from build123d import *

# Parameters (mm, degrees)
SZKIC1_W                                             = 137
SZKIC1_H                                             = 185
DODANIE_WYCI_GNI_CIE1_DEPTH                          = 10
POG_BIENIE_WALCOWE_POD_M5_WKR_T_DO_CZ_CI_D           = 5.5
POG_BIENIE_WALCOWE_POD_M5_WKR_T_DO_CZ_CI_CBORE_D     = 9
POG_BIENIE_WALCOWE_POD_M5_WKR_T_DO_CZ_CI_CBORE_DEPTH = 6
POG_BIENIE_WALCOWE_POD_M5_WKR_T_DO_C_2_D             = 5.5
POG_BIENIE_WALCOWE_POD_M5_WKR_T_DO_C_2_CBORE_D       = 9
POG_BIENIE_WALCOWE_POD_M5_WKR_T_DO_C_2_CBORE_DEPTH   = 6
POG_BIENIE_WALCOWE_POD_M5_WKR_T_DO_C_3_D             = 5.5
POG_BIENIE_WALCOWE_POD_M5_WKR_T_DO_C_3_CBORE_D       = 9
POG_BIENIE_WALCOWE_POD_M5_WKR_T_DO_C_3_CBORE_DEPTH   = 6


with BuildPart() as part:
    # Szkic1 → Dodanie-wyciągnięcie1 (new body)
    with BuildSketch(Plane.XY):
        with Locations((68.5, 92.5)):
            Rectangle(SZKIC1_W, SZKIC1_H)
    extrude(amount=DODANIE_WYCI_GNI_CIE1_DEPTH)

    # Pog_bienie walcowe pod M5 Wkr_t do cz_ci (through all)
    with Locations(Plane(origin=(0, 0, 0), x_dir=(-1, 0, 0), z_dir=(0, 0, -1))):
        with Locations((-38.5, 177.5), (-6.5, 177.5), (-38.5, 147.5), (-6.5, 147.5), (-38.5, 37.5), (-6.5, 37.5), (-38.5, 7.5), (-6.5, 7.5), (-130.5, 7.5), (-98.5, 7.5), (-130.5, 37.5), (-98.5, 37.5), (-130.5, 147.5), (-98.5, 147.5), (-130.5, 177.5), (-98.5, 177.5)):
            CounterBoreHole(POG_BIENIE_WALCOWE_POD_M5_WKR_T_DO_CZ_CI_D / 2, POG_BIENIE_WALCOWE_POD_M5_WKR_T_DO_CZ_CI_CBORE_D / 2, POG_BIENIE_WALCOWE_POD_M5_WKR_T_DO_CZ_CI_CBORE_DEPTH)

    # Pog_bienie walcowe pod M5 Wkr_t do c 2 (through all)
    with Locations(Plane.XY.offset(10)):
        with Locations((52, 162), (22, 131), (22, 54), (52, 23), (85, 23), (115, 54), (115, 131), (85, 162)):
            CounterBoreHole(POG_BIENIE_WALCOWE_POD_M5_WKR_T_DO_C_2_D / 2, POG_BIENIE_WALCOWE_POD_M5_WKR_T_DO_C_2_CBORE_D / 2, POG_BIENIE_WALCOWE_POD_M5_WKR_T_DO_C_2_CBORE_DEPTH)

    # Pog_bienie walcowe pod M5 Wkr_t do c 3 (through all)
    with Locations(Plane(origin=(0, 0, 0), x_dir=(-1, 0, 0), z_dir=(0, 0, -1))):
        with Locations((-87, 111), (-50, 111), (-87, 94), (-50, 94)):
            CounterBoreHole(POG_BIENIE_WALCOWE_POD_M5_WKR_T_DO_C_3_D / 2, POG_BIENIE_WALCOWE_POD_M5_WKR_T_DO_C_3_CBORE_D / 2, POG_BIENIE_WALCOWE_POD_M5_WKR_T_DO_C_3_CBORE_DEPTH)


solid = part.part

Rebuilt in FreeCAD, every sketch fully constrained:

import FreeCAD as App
import Part
import Sketcher
from FreeCAD import Vector


def add_polygon(sketch, points):
    """Adds a closed chain of lines whose ends are joined by coincident constraints."""
    first, n = sketch.GeometryCount, len(points)
    for a, b in zip(points, points[1:] + points[:1]):
        sketch.addGeometry(Part.LineSegment(App.Vector(*a, 0), App.Vector(*b, 0)), False)
    for i in range(n):
        sketch.addConstraint(Sketcher.Constraint("Coincident", first + i, 2, first + (i + 1) % n, 1))

doc = App.newDocument("Part")
body = doc.addObject("PartDesign::Body", "Body")

# Sketch on XY plane
sketch1 = doc.addObject("Sketcher::SketchObject", "Sketch")
body.addObject(sketch1)
sketch1.AttachmentSupport = (doc.XY_Plane, [""])
sketch1.MapMode = "FlatFace"
add_polygon(sketch1, [(0, 185), (0, 0), (137, 0), (137, 185)])  # lines 0-3
sketch1.addConstraint(Sketcher.Constraint("Vertical", 0))
sketch1.addConstraint(Sketcher.Constraint("Horizontal", 1))
sketch1.addConstraint(Sketcher.Constraint("Vertical", 2))
sketch1.addConstraint(Sketcher.Constraint("Horizontal", 3))
sketch1.addConstraint(Sketcher.Constraint("Coincident", 0, 2, -1, 1))
sketch1.addConstraint(Sketcher.Constraint("DistanceX", 1, 1, 1, 2, 137.0))
sketch1.addConstraint(Sketcher.Constraint("DistanceY", 0, 2, 0, 1, 185.0))
pad1 = doc.addObject("PartDesign::Pad", "Pad")
body.addObject(pad1)
pad1.Profile = sketch1
pad1.Length = 10

# Sketch on XY plane
sketch2 = doc.addObject("Sketcher::SketchObject", "Sketch001")
body.addObject(sketch2)
sketch2.AttachmentSupport = (doc.XY_Plane, [""])
sketch2.MapMode = "FlatFace"
sketch2.addGeometry(Part.Circle(Vector(38.5, 177.5, 0), Vector(0, 0, 1), 2.8), False)
sketch2.addGeometry(Part.Circle(Vector(6.5, 177.5, 0), Vector(0, 0, 1), 2.8), False)
sketch2.addGeometry(Part.Circle(Vector(38.5, 147.5, 0), Vector(0, 0, 1), 2.8), False)
sketch2.addGeometry(Part.Circle(Vector(6.5, 147.5, 0), Vector(0, 0, 1), 2.8), False)
sketch2.addGeometry(Part.Circle(Vector(38.5, 37.5, 0), Vector(0, 0, 1), 2.8), False)
sketch2.addGeometry(Part.Circle(Vector(6.5, 37.5, 0), Vector(0, 0, 1), 2.8), False)
sketch2.addGeometry(Part.Circle(Vector(38.5, 7.5, 0), Vector(0, 0, 1), 2.8), False)
sketch2.addGeometry(Part.Circle(Vector(6.5, 7.5, 0), Vector(0, 0, 1), 2.8), False)
sketch2.addGeometry(Part.Circle(Vector(130.5, 7.5, 0), Vector(0, 0, 1), 2.8), False)
sketch2.addGeometry(Part.Circle(Vector(98.5, 7.5, 0), Vector(0, 0, 1), 2.8), False)
sketch2.addGeometry(Part.Circle(Vector(130.5, 37.5, 0), Vector(0, 0, 1), 2.8), False)
sketch2.addGeometry(Part.Circle(Vector(98.5, 37.5, 0), Vector(0, 0, 1), 2.8), False)
sketch2.addGeometry(Part.Circle(Vector(130.5, 147.5, 0), Vector(0, 0, 1), 2.8), False)
sketch2.addGeometry(Part.Circle(Vector(98.5, 147.5, 0), Vector(0, 0, 1), 2.8), False)
sketch2.addGeometry(Part.Circle(Vector(130.5, 177.5, 0), Vector(0, 0, 1), 2.8), False)
sketch2.addGeometry(Part.Circle(Vector(98.5, 177.5, 0), Vector(0, 0, 1), 2.8), False)
sketch2.addConstraint(Sketcher.Constraint("Equal", 0, 1))
sketch2.addConstraint(Sketcher.Constraint("Equal", 1, 2))
sketch2.addConstraint(Sketcher.Constraint("Equal", 2, 3))
sketch2.addConstraint(Sketcher.Constraint("Equal", 3, 4))
sketch2.addConstraint(Sketcher.Constraint("Equal", 4, 5))
sketch2.addConstraint(Sketcher.Constraint("Equal", 5, 6))
sketch2.addConstraint(Sketcher.Constraint("Equal", 6, 7))
sketch2.addConstraint(Sketcher.Constraint("Equal", 7, 8))
sketch2.addConstraint(Sketcher.Constraint("Equal", 8, 9))
sketch2.addConstraint(Sketcher.Constraint("Equal", 9, 10))
sketch2.addConstraint(Sketcher.Constraint("Equal", 10, 11))
sketch2.addConstraint(Sketcher.Constraint("Equal", 11, 12))
sketch2.addConstraint(Sketcher.Constraint("Equal", 12, 13))
sketch2.addConstraint(Sketcher.Constraint("Equal", 13, 14))
sketch2.addConstraint(Sketcher.Constraint("Equal", 14, 15))
sketch2.addConstraint(Sketcher.Constraint("Horizontal", 0, 3, 1, 3))
sketch2.addConstraint(Sketcher.Constraint("Horizontal", 2, 3, 3, 3))
sketch2.addConstraint(Sketcher.Constraint("Horizontal", 4, 3, 5, 3))
sketch2.addConstraint(Sketcher.Constraint("Horizontal", 6, 3, 7, 3))
sketch2.addConstraint(Sketcher.Constraint("Horizontal", 7, 3, 8, 3))
sketch2.addConstraint(Sketcher.Constraint("Horizontal", 8, 3, 9, 3))
sketch2.addConstraint(Sketcher.Constraint("Horizontal", 5, 3, 10, 3))
sketch2.addConstraint(Sketcher.Constraint("Horizontal", 10, 3, 11, 3))
sketch2.addConstraint(Sketcher.Constraint("Horizontal", 3, 3, 12, 3))
sketch2.addConstraint(Sketcher.Constraint("Horizontal", 12, 3, 13, 3))
sketch2.addConstraint(Sketcher.Constraint("Horizontal", 1, 3, 14, 3))
sketch2.addConstraint(Sketcher.Constraint("Horizontal", 14, 3, 15, 3))
sketch2.addConstraint(Sketcher.Constraint("Vertical", 0, 3, 2, 3))
sketch2.addConstraint(Sketcher.Constraint("Vertical", 1, 3, 3, 3))
sketch2.addConstraint(Sketcher.Constraint("Vertical", 2, 3, 4, 3))
sketch2.addConstraint(Sketcher.Constraint("Vertical", 3, 3, 5, 3))
sketch2.addConstraint(Sketcher.Constraint("Vertical", 4, 3, 6, 3))
sketch2.addConstraint(Sketcher.Constraint("Vertical", 5, 3, 7, 3))
sketch2.addConstraint(Sketcher.Constraint("Vertical", 8, 3, 10, 3))
sketch2.addConstraint(Sketcher.Constraint("Vertical", 9, 3, 11, 3))
sketch2.addConstraint(Sketcher.Constraint("Vertical", 10, 3, 12, 3))
sketch2.addConstraint(Sketcher.Constraint("Vertical", 11, 3, 13, 3))
sketch2.addConstraint(Sketcher.Constraint("Vertical", 12, 3, 14, 3))
sketch2.addConstraint(Sketcher.Constraint("Vertical", 13, 3, 15, 3))
sketch2.addConstraint(Sketcher.Constraint("Diameter", 0, 5.5))
sketch2.addConstraint(Sketcher.Constraint("DistanceX", 1, 3, 0, 3, 32.0))
sketch2.addConstraint(Sketcher.Constraint("DistanceY", 2, 3, 0, 3, 30.0))
sketch2.addConstraint(Sketcher.Constraint("DistanceY", 4, 3, 2, 3, 110.0))
sketch2.addConstraint(Sketcher.Constraint("DistanceY", 6, 3, 4, 3, 30.0))
sketch2.addConstraint(Sketcher.Constraint("DistanceX", 6, 3, 8, 3, 92.0))
sketch2.addConstraint(Sketcher.Constraint("DistanceX", 9, 3, 8, 3, 32.0))
sketch2.addConstraint(Sketcher.Constraint("DistanceX", -1, 1, 0, 3, 38.5))
sketch2.addConstraint(Sketcher.Constraint("DistanceY", -1, 1, 0, 3, 177.5))
doc.recompute()
hole = doc.addObject("PartDesign::Hole", "Hole")
body.addObject(hole)
hole.Profile = sketch2
hole.ThreadType = "None"
hole.Diameter = 5.5
hole.DepthType = "ThroughAll"
hole.HoleCutType = "Counterbore"
hole.HoleCutDiameter = 9
hole.HoleCutDepth = 6
hole.Reversed = True

# Sketch on XY plane
sketch3 = doc.addObject("Sketcher::SketchObject", "Sketch002")
body.addObject(sketch3)
sketch3.AttachmentSupport = (doc.XY_Plane, [""])
sketch3.MapMode = "FlatFace"
sketch3.AttachmentOffset = App.Placement(Vector(0, 0, 10), App.Rotation())
sketch3.addGeometry(Part.Circle(Vector(52, 162, 0), Vector(0, 0, 1), 2.8), False)
sketch3.addGeometry(Part.Circle(Vector(22, 131, 0), Vector(0, 0, 1), 2.8), False)
sketch3.addGeometry(Part.Circle(Vector(22, 54, 0), Vector(0, 0, 1), 2.8), False)
sketch3.addGeometry(Part.Circle(Vector(52, 23, 0), Vector(0, 0, 1), 2.8), False)
sketch3.addGeometry(Part.Circle(Vector(85, 23, 0), Vector(0, 0, 1), 2.8), False)
sketch3.addGeometry(Part.Circle(Vector(115, 54, 0), Vector(0, 0, 1), 2.8), False)
sketch3.addGeometry(Part.Circle(Vector(115, 131, 0), Vector(0, 0, 1), 2.8), False)
sketch3.addGeometry(Part.Circle(Vector(85, 162, 0), Vector(0, 0, 1), 2.8), False)
sketch3.addConstraint(Sketcher.Constraint("Equal", 0, 1))
sketch3.addConstraint(Sketcher.Constraint("Equal", 1, 2))
sketch3.addConstraint(Sketcher.Constraint("Equal", 2, 3))
sketch3.addConstraint(Sketcher.Constraint("Equal", 3, 4))
sketch3.addConstraint(Sketcher.Constraint("Equal", 4, 5))
sketch3.addConstraint(Sketcher.Constraint("Equal", 5, 6))
sketch3.addConstraint(Sketcher.Constraint("Equal", 6, 7))
sketch3.addConstraint(Sketcher.Constraint("Horizontal", 3, 3, 4, 3))
sketch3.addConstraint(Sketcher.Constraint("Horizontal", 2, 3, 5, 3))
sketch3.addConstraint(Sketcher.Constraint("Horizontal", 1, 3, 6, 3))
sketch3.addConstraint(Sketcher.Constraint("Horizontal", 0, 3, 7, 3))
sketch3.addConstraint(Sketcher.Constraint("Vertical", 1, 3, 2, 3))
sketch3.addConstraint(Sketcher.Constraint("Vertical", 0, 3, 3, 3))
sketch3.addConstraint(Sketcher.Constraint("Vertical", 5, 3, 6, 3))
sketch3.addConstraint(Sketcher.Constraint("Vertical", 4, 3, 7, 3))
sketch3.addConstraint(Sketcher.Constraint("Diameter", 0, 5.5))
sketch3.addConstraint(Sketcher.Constraint("DistanceX", -1, 1, 0, 3, 52.0))
sketch3.addConstraint(Sketcher.Constraint("DistanceY", -1, 1, 0, 3, 162.0))
sketch3.addConstraint(Sketcher.Constraint("DistanceX", -1, 1, 1, 3, 22.0))
sketch3.addConstraint(Sketcher.Constraint("DistanceY", -1, 1, 1, 3, 131.0))
sketch3.addConstraint(Sketcher.Constraint("DistanceY", -1, 1, 2, 3, 54.0))
sketch3.addConstraint(Sketcher.Constraint("DistanceY", -1, 1, 3, 3, 23.0))
sketch3.addConstraint(Sketcher.Constraint("DistanceX", -1, 1, 4, 3, 85.0))
sketch3.addConstraint(Sketcher.Constraint("DistanceX", -1, 1, 5, 3, 115.0))
doc.recompute()
hole2 = doc.addObject("PartDesign::Hole", "Hole001")
body.addObject(hole2)
hole2.Profile = sketch3
hole2.ThreadType = "None"
hole2.Diameter = 5.5
hole2.DepthType = "ThroughAll"
hole2.HoleCutType = "Counterbore"
hole2.HoleCutDiameter = 9
hole2.HoleCutDepth = 6

# Sketch on XY plane
sketch4 = doc.addObject("Sketcher::SketchObject", "Sketch003")
body.addObject(sketch4)
sketch4.AttachmentSupport = (doc.XY_Plane, [""])
sketch4.MapMode = "FlatFace"
sketch4.addGeometry(Part.Circle(Vector(87, 111, 0), Vector(0, 0, 1), 2.8), False)
sketch4.addGeometry(Part.Circle(Vector(50, 111, 0), Vector(0, 0, 1), 2.8), False)
sketch4.addGeometry(Part.Circle(Vector(87, 94, 0), Vector(0, 0, 1), 2.8), False)
sketch4.addGeometry(Part.Circle(Vector(50, 94, 0), Vector(0, 0, 1), 2.8), False)
sketch4.addConstraint(Sketcher.Constraint("Equal", 0, 1))
sketch4.addConstraint(Sketcher.Constraint("Equal", 1, 2))
sketch4.addConstraint(Sketcher.Constraint("Equal", 2, 3))
sketch4.addConstraint(Sketcher.Constraint("Horizontal", 0, 3, 1, 3))
sketch4.addConstraint(Sketcher.Constraint("Horizontal", 2, 3, 3, 3))
sketch4.addConstraint(Sketcher.Constraint("Vertical", 0, 3, 2, 3))
sketch4.addConstraint(Sketcher.Constraint("Vertical", 1, 3, 3, 3))
sketch4.addConstraint(Sketcher.Constraint("Diameter", 0, 5.5))
sketch4.addConstraint(Sketcher.Constraint("DistanceX", -1, 1, 0, 3, 87.0))
sketch4.addConstraint(Sketcher.Constraint("DistanceY", -1, 1, 0, 3, 111.0))
sketch4.addConstraint(Sketcher.Constraint("DistanceX", -1, 1, 1, 3, 50.0))
sketch4.addConstraint(Sketcher.Constraint("DistanceY", -1, 1, 2, 3, 94.0))
doc.recompute()
hole3 = doc.addObject("PartDesign::Hole", "Hole002")
body.addObject(hole3)
hole3.Profile = sketch4
hole3.ThreadType = "None"
hole3.Diameter = 5.5
hole3.DepthType = "ThroughAll"
hole3.HoleCutType = "Counterbore"
hole3.HoleCutDiameter = 9
hole3.HoleCutDepth = 6
hole3.Reversed = True

doc.recompute()
